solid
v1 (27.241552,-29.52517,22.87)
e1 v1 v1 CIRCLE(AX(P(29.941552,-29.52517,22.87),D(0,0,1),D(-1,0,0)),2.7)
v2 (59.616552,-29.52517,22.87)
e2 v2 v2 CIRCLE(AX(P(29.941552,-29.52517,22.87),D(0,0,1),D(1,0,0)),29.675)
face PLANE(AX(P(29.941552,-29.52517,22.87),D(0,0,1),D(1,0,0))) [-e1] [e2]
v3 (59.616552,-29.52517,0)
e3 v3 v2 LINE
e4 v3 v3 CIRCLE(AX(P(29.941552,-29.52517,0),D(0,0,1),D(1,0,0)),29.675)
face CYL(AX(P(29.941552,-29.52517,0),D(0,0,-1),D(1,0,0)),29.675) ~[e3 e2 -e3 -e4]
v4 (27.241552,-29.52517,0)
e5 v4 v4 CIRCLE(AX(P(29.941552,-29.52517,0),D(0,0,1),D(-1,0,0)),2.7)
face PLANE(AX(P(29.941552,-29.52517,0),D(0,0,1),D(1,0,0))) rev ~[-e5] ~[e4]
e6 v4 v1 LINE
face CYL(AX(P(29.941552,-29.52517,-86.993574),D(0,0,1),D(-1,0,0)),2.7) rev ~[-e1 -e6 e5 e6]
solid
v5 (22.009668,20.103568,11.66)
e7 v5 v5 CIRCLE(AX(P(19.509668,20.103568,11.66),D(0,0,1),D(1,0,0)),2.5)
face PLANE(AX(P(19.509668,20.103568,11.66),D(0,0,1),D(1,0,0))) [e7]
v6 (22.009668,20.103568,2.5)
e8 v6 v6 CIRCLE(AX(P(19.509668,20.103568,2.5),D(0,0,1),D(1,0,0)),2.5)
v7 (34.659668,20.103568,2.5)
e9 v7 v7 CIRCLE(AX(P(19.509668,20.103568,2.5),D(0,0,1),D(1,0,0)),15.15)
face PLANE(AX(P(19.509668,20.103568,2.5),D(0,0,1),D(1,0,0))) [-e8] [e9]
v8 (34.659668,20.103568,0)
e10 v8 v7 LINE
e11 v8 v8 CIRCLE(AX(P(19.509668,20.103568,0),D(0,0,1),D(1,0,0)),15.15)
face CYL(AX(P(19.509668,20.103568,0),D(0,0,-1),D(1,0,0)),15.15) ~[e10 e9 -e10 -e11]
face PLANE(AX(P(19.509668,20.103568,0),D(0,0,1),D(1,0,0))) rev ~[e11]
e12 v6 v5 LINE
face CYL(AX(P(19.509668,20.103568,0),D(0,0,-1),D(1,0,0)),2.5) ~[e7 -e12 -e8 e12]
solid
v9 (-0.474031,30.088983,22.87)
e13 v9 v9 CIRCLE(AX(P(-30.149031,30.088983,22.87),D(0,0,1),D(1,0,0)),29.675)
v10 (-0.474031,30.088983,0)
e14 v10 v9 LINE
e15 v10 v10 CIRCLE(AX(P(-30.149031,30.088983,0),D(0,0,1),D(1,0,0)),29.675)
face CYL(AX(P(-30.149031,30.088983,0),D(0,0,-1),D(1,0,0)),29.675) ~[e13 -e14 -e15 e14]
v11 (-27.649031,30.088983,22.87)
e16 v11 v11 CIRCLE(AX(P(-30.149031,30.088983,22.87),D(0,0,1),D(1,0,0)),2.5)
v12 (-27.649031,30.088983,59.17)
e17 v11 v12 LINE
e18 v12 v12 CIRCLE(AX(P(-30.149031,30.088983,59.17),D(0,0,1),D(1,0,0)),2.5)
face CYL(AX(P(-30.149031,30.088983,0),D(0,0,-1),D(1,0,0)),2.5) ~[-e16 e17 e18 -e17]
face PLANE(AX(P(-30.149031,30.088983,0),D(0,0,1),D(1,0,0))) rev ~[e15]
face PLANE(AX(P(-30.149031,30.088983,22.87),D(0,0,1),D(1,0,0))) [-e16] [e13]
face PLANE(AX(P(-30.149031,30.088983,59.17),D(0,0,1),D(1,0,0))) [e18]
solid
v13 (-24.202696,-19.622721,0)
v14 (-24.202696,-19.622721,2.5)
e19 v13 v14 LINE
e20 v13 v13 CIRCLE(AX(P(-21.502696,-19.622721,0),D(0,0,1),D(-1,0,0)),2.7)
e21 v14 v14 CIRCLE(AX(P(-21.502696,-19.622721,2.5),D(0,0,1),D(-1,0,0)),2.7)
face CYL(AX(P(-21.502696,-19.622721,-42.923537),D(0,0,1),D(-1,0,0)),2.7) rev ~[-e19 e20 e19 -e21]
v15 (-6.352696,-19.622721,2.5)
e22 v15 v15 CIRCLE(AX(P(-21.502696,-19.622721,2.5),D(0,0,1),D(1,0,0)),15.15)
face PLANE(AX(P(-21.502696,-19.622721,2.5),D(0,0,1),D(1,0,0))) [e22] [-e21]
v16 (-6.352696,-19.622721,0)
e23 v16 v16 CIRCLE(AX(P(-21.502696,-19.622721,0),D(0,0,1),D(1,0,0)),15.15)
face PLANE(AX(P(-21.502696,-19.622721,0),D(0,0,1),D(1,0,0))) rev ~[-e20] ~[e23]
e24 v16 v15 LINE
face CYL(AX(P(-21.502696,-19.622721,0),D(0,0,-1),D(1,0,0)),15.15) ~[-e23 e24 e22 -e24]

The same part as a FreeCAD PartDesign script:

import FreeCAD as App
import Part
import Sketcher

doc = App.newDocument("Part")
body = doc.addObject("PartDesign::Body", "Body")

sketch1 = body.newObject("Sketcher::SketchObject", "Sketch")
sketch1.AttachmentSupport = (doc.getObject("XY_Plane"), [""])
sketch1.MapMode = "FlatFace"
sketch1.addGeometry(Part.Circle(App.Vector(-30.1, 30.1, 0), App.Vector(0, 0, 1), 2.5), False)
sketch1.addConstraint(Sketcher.Constraint("Diameter", 0, 5.0))
sketch1.addConstraint(Sketcher.Constraint("DistanceX", 0, 3, -1, 1, 30.149031))
sketch1.addConstraint(Sketcher.Constraint("DistanceY", -1, 1, 0, 3, 30.088983))
pad1 = body.newObject("PartDesign::Pad", "Pad")
pad1.Profile = sketch1
pad1.Length = 59.17

sketch2 = body.newObject("Sketcher::SketchObject", "Sketch001")
sketch2.AttachmentSupport = (doc.getObject("XY_Plane"), [""])
sketch2.MapMode = "FlatFace"
sketch2.addGeometry(Part.Circle(App.Vector(-30.1, 30.1, 0), App.Vector(0, 0, 1), 29.7), False)
sketch2.addGeometry(Part.Circle(App.Vector(-30.1, 30.1, 0), App.Vector(0, 0, 1), 2.5), False)
sketch2.addConstraint(Sketcher.Constraint("Coincident", 1, 3, 0, 3))
sketch2.addConstraint(Sketcher.Constraint("Diameter", 1, 5.0))
sketch2.addConstraint(Sketcher.Constraint("Diameter", 0, 59.35))
sketch2.addConstraint(Sketcher.Constraint("DistanceX", 0, 3, -1, 1, 30.149031))
sketch2.addConstraint(Sketcher.Constraint("DistanceY", -1, 1, 0, 3, 30.088983))
pad2 = body.newObject("PartDesign::Pad", "Pad001")
pad2.Profile = sketch2
pad2.Length = 22.87
body2 = doc.addObject("PartDesign::Body", "Body001")

sketch3 = body2.newObject("Sketcher::SketchObject", "Sketch002")
sketch3.AttachmentSupport = (doc.getObject("XY_Plane001"), [""])
sketch3.MapMode = "FlatFace"
sketch3.addGeometry(Part.Circle(App.Vector(19.5, 20.1, 0), App.Vector(0, 0, 1), 2.5), False)
sketch3.addConstraint(Sketcher.Constraint("Diameter", 0, 5.0))
sketch3.addConstraint(Sketcher.Constraint("DistanceX", -1, 1, 0, 3, 19.509668))
sketch3.addConstraint(Sketcher.Constraint("DistanceY", -1, 1, 0, 3, 20.103568))
pad3 = body2.newObject("PartDesign::Pad", "Pad002")
pad3.Profile = sketch3
pad3.Length = 11.66

sketch4 = body2.newObject("Sketcher::SketchObject", "Sketch003")
sketch4.AttachmentSupport = (doc.getObject("XY_Plane001"), [""])
sketch4.MapMode = "FlatFace"
sketch4.addGeometry(Part.Circle(App.Vector(19.5, 20.1, 0), App.Vector(0, 0, 1), 15.2), False)
sketch4.addGeometry(Part.Circle(App.Vector(19.5, 20.1, 0), App.Vector(0, 0, 1), 2.5), False)
sketch4.addConstraint(Sketcher.Constraint("Coincident", 1, 3, 0, 3))
sketch4.addConstraint(Sketcher.Constraint("Diameter", 1, 5.0))
sketch4.addConstraint(Sketcher.Constraint("Diameter", 0, 30.3))
sketch4.addConstraint(Sketcher.Constraint("DistanceX", -1, 1, 0, 3, 19.509668))
sketch4.addConstraint(Sketcher.Constraint("DistanceY", -1, 1, 0, 3, 20.103568))
pad4 = body2.newObject("PartDesign::Pad", "Pad003")
pad4.Profile = sketch4
pad4.Length = 2.5
body3 = doc.addObject("PartDesign::Body", "Body002")

sketch5 = body3.newObject("Sketcher::SketchObject", "Sketch004")
sketch5.AttachmentSupport = (doc.getObject("XY_Plane002"), [""])
sketch5.MapMode = "FlatFace"
sketch5.addGeometry(Part.Circle(App.Vector(-22, -20, 0), App.Vector(0, 0, 1), 15), False)
sketch5.addConstraint(Sketcher.Constraint("Diameter", 0, 30.3))
sketch5.addConstraint(Sketcher.Constraint("DistanceY", 0, 3, -1, 1, 19.622721))
sketch5.addConstraint(Sketcher.Constraint("DistanceX", 0, 3, -1, 1, 21.502696))
pad5 = body3.newObject("PartDesign::Pad", "Pad004")
pad5.Profile = sketch5
pad5.Length = 2.5

sketch6 = body3.newObject("Sketcher::SketchObject", "Sketch005")
sketch6.AttachmentSupport = (doc.getObject("XY_Plane002"), [""])
sketch6.MapMode = "FlatFace"
sketch6.addGeometry(Part.Circle(App.Vector(-21.5, -19.6, 0), App.Vector(0, 0, 1), 2.7), False)
sketch6.addConstraint(Sketcher.Constraint("Diameter", 0, 5.4))
sketch6.addConstraint(Sketcher.Constraint("DistanceY", 0, 3, -1, 1, 19.622721))
sketch6.addConstraint(Sketcher.Constraint("DistanceX", 0, 3, -1, 1, 21.502696))
doc.recompute()
hole = body3.newObject("PartDesign::Hole", "Hole")
hole.Profile = sketch6
hole.ThreadType = "None"
hole.Diameter = 5.4
hole.DepthType = "ThroughAll"
hole.Reversed = True
body4 = doc.addObject("PartDesign::Body", "Body003")

sketch7 = body4.newObject("Sketcher::SketchObject", "Sketch006")
sketch7.AttachmentSupport = (doc.getObject("XY_Plane003"), [""])
sketch7.MapMode = "FlatFace"
sketch7.addGeometry(Part.Circle(App.Vector(30, -30, 0), App.Vector(0, 0, 1), 30), False)
sketch7.addConstraint(Sketcher.Constraint("Diameter", 0, 59.35))
sketch7.addConstraint(Sketcher.Constraint("DistanceY", 0, 3, -1, 1, 29.52517))
sketch7.addConstraint(Sketcher.Constraint("DistanceX", -1, 1, 0, 3, 29.941552))
pad6 = body4.newObject("PartDesign::Pad", "Pad005")
pad6.Profile = sketch7
pad6.Length = 22.87

sketch8 = body4.newObject("Sketcher::SketchObject", "Sketch007")
sketch8.AttachmentSupport = (doc.getObject("XY_Plane003"), [""])
sketch8.MapMode = "FlatFace"
sketch8.addGeometry(Part.Circle(App.Vector(29.9, -29.5, 0), App.Vector(0, 0, 1), 2.7), False)
sketch8.addConstraint(Sketcher.Constraint("Diameter", 0, 5.4))
sketch8.addConstraint(Sketcher.Constraint("DistanceY", 0, 3, -1, 1, 29.52517))
sketch8.addConstraint(Sketcher.Constraint("DistanceX", -1, 1, 0, 3, 29.941552))
doc.recompute()
hole2 = body4.newObject("PartDesign::Hole", "Hole001")
hole2.Profile = sketch8
hole2.ThreadType = "None"
hole2.Diameter = 5.4
hole2.DepthType = "ThroughAll"
hole2.Reversed = True

doc.recompute()
